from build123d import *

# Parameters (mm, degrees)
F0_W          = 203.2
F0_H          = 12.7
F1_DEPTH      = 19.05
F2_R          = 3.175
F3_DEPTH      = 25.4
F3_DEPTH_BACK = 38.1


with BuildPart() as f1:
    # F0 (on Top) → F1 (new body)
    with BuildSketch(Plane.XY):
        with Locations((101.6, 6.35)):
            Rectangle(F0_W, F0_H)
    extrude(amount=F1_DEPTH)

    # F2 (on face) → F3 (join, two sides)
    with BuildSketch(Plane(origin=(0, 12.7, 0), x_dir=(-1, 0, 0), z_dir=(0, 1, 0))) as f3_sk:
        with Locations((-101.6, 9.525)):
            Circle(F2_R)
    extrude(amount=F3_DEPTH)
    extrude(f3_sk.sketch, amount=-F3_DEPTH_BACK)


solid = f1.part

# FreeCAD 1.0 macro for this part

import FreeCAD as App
import Part
import Sketcher
Q = App.Units.Quantity


def add_polygon(sketch, points):
    """Adds a closed chain of lines whose ends are joined by coincident constraints."""
    first, n = sketch.GeometryCount, len(points)
    for a, b in zip(points, points[1:] + points[:1]):
        sketch.addGeometry(Part.LineSegment(App.Vector(*a, 0), App.Vector(*b, 0)), False)
    for i in range(n):
        sketch.addConstraint(Sketcher.Constraint("Coincident", first + i, 2, first + (i + 1) % n, 1))

doc = App.newDocument("Part")
body = doc.addObject("PartDesign::Body", "Body")

# Sketch on XY plane
sketch1 = body.newObject("Sketcher::SketchObject", "Sketch")
sketch1.AttachmentSupport = (doc.getObject("XY_Plane"), [""])
sketch1.MapMode = "FlatFace"
add_polygon(sketch1, [(0, 12.7), (0, 0), (203.2, 0), (203.2, 12.7)])  # lines 0-3
sketch1.addConstraint([
    Sketcher.Constraint("Vertical", 0),
    Sketcher.Constraint("Horizontal", 1),
    Sketcher.Constraint("Vertical", 2),
    Sketcher.Constraint("Horizontal", 3),
    Sketcher.Constraint("Coincident", 0, 2, -1, 1),
    Sketcher.Constraint("DistanceX", 1, 1, 1, 2, Q("8 in")),
    Sketcher.Constraint("DistanceY", 0, 2, 0, 1, Q("0.5 in")),
])
pad1 = body.newObject("PartDesign::Pad", "Pad")
pad1.Profile = sketch1
pad1.Length = Q("0.75 in")

# Sketch on XZ plane
sketch2 = body.newObject("Sketcher::SketchObject", "Sketch001")
sketch2.AttachmentSupport = (doc.getObject("XZ_Plane"), [""])
sketch2.MapMode = "FlatFace"
sketch2.AttachmentOffset = App.Placement(App.Vector(0, 0, -0.5 * 25.4), App.Rotation())
sketch2.addGeometry(Part.Circle(App.Vector(101.6, 9.525, 0), App.Vector(0, 0, 1), 3.175), False)
sketch2.addConstraint([
    Sketcher.Constraint("Diameter", 0, Q("0.25 in")),
    Sketcher.Constraint("DistanceX", -1, 1, 0, 3, Q("4 in")),
    Sketcher.Constraint("DistanceY", -1, 1, 0, 3, Q("0.375 in")),
])
pad2 = body.newObject("PartDesign::Pad", "Pad001")
pad2.Profile = sketch2
pad2.Type = "TwoLengths"
pad2.Length = Q("1 in")
pad2.Length2 = Q("1.5 in")
pad2.Reversed = True

doc.recompute()
